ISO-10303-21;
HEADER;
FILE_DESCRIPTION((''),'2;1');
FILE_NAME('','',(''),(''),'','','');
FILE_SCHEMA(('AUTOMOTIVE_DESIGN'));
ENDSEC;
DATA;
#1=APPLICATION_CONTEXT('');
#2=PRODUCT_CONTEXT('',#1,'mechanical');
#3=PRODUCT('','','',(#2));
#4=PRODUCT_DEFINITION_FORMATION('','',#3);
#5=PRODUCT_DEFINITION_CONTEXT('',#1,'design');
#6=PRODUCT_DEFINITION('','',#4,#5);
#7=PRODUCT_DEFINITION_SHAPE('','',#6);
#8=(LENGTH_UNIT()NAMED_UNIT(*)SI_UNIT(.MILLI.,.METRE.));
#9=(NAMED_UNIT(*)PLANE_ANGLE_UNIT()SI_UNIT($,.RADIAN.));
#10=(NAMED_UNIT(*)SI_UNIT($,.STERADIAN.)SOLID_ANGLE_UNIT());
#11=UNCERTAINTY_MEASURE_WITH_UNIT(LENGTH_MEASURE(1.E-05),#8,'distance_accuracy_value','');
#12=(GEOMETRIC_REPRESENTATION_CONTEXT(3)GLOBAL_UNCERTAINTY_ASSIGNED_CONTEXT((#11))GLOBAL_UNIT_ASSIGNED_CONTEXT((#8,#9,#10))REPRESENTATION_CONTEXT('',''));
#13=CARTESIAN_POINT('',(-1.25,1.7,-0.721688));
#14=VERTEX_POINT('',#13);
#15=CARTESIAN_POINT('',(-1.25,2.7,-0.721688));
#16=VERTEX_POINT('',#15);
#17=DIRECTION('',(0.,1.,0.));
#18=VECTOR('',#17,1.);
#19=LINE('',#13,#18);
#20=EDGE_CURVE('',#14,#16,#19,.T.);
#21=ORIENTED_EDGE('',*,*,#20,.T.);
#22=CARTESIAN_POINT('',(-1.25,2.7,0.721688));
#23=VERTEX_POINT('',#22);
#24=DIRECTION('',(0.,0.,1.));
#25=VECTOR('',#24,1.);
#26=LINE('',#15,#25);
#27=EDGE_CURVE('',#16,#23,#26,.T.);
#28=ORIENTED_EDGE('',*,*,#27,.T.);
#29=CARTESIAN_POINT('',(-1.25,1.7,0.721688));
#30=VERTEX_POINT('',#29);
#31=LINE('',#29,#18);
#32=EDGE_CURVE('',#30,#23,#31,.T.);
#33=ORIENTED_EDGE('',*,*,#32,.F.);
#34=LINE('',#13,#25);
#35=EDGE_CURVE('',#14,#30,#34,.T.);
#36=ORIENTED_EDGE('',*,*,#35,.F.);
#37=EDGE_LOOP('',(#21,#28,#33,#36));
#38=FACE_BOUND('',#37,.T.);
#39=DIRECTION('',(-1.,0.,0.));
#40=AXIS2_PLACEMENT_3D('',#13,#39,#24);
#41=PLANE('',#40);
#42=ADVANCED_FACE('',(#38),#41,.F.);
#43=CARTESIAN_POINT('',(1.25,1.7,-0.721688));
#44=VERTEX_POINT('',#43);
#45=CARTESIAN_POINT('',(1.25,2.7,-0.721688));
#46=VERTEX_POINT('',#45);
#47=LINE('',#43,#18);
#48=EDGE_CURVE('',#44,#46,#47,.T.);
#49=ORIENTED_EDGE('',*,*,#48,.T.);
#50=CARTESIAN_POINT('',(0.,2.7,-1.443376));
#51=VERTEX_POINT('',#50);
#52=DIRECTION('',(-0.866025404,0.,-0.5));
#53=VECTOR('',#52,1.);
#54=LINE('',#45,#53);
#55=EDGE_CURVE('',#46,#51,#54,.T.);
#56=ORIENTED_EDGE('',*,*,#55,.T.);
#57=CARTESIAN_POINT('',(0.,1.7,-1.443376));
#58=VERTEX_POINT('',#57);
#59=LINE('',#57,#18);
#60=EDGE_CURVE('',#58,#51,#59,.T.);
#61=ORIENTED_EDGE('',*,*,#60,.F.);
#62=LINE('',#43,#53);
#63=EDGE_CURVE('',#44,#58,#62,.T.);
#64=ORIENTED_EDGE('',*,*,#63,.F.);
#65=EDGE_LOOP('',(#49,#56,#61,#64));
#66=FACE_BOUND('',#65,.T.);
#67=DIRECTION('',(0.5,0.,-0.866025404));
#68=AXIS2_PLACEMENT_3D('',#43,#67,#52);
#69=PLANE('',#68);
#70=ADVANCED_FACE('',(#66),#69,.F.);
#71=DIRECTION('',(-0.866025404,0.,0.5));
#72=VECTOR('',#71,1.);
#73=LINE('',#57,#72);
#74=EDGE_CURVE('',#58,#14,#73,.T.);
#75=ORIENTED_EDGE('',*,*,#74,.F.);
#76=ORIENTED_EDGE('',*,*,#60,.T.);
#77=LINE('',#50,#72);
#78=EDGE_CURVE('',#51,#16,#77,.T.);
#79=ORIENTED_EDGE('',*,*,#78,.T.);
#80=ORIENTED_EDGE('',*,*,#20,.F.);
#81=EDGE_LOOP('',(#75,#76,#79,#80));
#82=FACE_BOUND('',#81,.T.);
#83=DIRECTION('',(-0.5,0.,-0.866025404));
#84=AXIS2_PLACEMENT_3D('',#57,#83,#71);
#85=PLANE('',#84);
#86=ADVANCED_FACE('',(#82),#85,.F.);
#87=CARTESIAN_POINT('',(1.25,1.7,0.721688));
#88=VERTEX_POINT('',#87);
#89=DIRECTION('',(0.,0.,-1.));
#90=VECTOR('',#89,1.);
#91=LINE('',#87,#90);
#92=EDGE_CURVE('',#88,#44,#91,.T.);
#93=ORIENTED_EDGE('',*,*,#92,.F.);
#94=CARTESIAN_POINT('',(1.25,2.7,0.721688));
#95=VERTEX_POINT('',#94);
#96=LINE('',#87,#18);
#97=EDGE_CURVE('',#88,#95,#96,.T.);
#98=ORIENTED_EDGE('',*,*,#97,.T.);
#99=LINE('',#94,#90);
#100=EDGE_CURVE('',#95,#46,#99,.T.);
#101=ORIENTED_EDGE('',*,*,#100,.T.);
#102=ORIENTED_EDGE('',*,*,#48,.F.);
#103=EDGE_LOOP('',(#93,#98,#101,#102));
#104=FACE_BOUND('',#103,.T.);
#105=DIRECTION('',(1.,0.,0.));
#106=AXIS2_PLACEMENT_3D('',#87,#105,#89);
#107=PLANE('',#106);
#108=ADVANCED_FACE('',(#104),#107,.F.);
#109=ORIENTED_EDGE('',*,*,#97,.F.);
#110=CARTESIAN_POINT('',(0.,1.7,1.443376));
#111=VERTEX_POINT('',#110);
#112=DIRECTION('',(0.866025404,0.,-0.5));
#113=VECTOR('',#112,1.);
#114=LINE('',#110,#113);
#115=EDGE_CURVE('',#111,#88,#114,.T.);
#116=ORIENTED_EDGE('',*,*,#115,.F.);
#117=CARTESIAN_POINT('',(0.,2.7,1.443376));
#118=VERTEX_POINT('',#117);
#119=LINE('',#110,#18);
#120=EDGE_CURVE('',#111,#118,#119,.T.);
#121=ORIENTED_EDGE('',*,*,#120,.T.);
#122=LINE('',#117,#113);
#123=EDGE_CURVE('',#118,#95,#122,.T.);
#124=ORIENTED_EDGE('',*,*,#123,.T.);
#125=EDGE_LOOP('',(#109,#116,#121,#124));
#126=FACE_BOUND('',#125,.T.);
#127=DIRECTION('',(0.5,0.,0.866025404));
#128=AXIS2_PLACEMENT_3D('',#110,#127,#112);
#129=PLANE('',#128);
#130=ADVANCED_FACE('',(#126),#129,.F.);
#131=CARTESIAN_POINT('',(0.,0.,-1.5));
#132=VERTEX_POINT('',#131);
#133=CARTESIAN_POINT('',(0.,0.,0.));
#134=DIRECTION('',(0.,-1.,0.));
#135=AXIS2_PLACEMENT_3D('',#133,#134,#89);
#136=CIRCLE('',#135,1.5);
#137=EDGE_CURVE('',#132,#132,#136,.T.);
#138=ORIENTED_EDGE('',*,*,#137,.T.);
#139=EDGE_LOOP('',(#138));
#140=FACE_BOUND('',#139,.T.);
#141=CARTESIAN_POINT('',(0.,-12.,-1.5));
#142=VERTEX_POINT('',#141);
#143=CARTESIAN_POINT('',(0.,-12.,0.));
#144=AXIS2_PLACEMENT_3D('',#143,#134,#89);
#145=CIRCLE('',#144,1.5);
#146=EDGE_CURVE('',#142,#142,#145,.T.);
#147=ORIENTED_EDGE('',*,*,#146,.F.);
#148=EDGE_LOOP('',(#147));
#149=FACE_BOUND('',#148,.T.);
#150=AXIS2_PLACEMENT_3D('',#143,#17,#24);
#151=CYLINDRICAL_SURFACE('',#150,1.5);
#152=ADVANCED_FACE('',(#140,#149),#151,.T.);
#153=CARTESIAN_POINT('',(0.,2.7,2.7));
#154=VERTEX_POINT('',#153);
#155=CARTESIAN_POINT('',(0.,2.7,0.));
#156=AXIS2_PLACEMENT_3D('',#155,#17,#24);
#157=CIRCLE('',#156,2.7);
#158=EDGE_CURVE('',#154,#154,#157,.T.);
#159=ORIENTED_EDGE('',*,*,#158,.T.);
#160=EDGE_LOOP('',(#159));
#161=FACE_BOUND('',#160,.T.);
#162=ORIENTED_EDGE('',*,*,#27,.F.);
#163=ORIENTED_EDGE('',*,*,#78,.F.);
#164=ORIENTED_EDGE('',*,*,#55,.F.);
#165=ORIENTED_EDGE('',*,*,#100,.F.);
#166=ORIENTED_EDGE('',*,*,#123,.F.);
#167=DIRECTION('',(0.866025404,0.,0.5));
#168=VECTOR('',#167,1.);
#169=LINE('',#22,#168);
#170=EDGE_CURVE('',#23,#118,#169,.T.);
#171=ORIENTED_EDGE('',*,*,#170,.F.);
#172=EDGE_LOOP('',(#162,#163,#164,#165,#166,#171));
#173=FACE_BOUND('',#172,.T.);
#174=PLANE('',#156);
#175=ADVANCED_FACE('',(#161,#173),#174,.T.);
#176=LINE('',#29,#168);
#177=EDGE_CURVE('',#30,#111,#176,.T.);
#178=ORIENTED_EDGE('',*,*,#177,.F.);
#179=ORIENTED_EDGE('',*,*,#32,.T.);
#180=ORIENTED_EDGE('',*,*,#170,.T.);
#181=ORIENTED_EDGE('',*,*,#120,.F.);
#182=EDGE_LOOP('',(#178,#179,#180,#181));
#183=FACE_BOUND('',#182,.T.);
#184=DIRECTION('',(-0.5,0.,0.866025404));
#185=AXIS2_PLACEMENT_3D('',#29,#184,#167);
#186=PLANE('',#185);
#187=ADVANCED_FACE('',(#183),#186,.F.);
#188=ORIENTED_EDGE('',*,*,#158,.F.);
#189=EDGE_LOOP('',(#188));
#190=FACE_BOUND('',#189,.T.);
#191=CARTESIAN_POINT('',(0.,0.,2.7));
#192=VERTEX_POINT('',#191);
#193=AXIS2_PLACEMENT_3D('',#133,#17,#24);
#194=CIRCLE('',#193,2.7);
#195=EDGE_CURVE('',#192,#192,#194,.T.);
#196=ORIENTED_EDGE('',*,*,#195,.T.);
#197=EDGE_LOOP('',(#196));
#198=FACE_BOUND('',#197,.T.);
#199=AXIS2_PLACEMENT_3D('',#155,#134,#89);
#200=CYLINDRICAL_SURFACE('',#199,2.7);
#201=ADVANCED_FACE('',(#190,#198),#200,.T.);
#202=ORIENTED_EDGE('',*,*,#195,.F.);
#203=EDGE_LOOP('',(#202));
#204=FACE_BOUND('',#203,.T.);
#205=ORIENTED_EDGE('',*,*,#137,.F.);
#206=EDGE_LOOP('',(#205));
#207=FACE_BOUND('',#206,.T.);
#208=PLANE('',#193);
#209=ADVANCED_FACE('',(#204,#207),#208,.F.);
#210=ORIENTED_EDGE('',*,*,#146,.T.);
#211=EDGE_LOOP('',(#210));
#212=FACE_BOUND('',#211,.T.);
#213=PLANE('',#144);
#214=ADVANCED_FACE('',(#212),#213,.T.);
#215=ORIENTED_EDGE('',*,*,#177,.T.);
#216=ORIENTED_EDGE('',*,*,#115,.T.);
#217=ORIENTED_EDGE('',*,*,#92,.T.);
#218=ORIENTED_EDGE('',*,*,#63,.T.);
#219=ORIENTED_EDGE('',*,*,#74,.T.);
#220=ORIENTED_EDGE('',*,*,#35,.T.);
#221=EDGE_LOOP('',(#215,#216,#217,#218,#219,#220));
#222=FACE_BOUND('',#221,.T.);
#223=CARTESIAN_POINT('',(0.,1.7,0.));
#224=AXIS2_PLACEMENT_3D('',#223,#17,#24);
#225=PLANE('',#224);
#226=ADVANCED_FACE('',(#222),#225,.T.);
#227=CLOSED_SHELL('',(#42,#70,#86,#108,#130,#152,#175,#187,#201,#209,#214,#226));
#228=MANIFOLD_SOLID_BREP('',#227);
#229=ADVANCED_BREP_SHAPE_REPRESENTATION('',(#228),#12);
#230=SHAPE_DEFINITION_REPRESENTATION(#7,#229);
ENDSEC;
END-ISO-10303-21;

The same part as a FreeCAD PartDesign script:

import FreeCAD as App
import Part
import Sketcher

V = App.Vector
Q = App.Units.Quantity

doc = App.newDocument("Part")
body = doc.addObject("PartDesign::Body", "Body")

sketch1 = body.newObject("Sketcher::SketchObject", "Sketch")
sketch1.AttachmentSupport = (doc.getObject("XZ_Plane"), [""])
sketch1.MapMode = "FlatFace"
sketch1.addGeometry(Part.Circle(V(0, 0, 0), V(0, 0, 1), 2.7), False)
sketch1.addConstraint(Sketcher.Constraint("Coincident", 0, 3, -1, 1))
sketch1.addConstraint(Sketcher.Constraint("Diameter", 0, Q("5.4 mm")))
pad1 = body.newObject("PartDesign::Pad", "Pad")
pad1.Profile = sketch1
pad1.Length = 2.7
pad1.Reversed = True

sketch2 = body.newObject("Sketcher::SketchObject", "Sketch001")
sketch2.AttachmentSupport = (doc.getObject("XZ_Plane"), [""])
sketch2.MapMode = "FlatFace"
sketch2.AttachmentOffset = App.Placement(V(0, 0, -2.7), App.Rotation())
sketch2.addGeometry(Part.LineSegment(V(0, -1.443376, 0), V(-1.25, -0.721688, 0)), False)
sketch2.addGeometry(Part.LineSegment(V(-1.25, -0.721688, 0), V(-1.25, 0.721688, 0)), False)
sketch2.addGeometry(Part.LineSegment(V(-1.25, 0.721688, 0), V(0, 1.443376, 0)), False)
sketch2.addGeometry(Part.LineSegment(V(0, 1.443376, 0), V(1.25, 0.721688, 0)), False)
sketch2.addGeometry(Part.LineSegment(V(1.25, 0.721688, 0), V(1.25, -0.721688, 0)), False)
sketch2.addGeometry(Part.LineSegment(V(1.25, -0.721688, 0), V(0, -1.443376, 0)), False)
sketch2.addConstraint(Sketcher.Constraint("Coincident", 0, 2, 1, 1))
sketch2.addConstraint(Sketcher.Constraint("Coincident", 1, 2, 2, 1))
sketch2.addConstraint(Sketcher.Constraint("Coincident", 2, 2, 3, 1))
sketch2.addConstraint(Sketcher.Constraint("Coincident", 3, 2, 4, 1))
sketch2.addConstraint(Sketcher.Constraint("Coincident", 4, 2, 5, 1))
sketch2.addConstraint(Sketcher.Constraint("Coincident", 5, 2, 0, 1))
sketch2.addConstraint(Sketcher.Constraint("Vertical", 1))
sketch2.addConstraint(Sketcher.Constraint("Vertical", 4))
sketch2.addConstraint(Sketcher.Constraint("Symmetric", 0, 2, 3, 2, -1, 1))
sketch2.addConstraint(Sketcher.Constraint("Symmetric", 2, 2, 5, 2, -1, 1))
sketch2.addConstraint(Sketcher.Constraint("PointOnObject", 2, 2, -2))
sketch2.addConstraint(Sketcher.Constraint("Parallel", 2, 5))
sketch2.addConstraint(Sketcher.Constraint("Horizontal", 1, 2, 3, 2))
sketch2.addConstraint(Sketcher.Constraint("Angle", 0, Q("150 deg")))
sketch2.addConstraint(Sketcher.Constraint("DistanceX", 1, 2, 3, 2, Q("2.5 mm")))
sketch2.addConstraint(Sketcher.Constraint("DistanceY", 1, 1, 1, 2, Q("1.443376 mm")))
pocket1 = body.newObject("PartDesign::Pocket", "Pocket")
pocket1.Profile = sketch2
pocket1.Length = 1
pocket1.Reversed = True

sketch3 = body.newObject("Sketcher::SketchObject", "Sketch002")
sketch3.AttachmentSupport = (doc.getObject("XZ_Plane"), [""])
sketch3.MapMode = "FlatFace"
sketch3.addGeometry(Part.Circle(V(0, 0, 0), V(0, 0, 1), 1.5), False)
sketch3.addConstraint(Sketcher.Constraint("Coincident", 0, 3, -1, 1))
sketch3.addConstraint(Sketcher.Constraint("Diameter", 0, Q("3 mm")))
pad2 = body.newObject("PartDesign::Pad", "Pad001")
pad2.Profile = sketch3
pad2.Length = 12

doc.recompute()
